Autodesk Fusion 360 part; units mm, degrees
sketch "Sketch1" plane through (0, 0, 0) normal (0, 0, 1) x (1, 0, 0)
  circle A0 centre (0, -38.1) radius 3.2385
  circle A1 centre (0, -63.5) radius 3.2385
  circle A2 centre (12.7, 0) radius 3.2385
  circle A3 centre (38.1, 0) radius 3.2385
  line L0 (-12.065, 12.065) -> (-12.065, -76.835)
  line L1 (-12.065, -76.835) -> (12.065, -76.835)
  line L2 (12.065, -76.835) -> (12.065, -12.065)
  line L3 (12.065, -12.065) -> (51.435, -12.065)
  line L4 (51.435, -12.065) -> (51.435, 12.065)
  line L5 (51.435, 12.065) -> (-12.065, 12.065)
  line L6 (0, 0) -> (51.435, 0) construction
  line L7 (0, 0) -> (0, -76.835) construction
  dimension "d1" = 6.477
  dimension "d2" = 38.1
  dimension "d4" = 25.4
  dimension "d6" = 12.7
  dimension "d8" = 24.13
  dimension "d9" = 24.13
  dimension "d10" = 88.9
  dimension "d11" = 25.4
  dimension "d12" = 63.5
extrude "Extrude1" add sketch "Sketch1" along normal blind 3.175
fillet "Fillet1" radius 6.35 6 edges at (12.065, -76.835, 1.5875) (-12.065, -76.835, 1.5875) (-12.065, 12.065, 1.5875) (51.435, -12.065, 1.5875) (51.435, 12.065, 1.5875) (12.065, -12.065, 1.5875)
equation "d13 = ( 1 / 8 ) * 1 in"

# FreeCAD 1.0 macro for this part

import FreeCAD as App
import Part
import Sketcher

V = App.Vector
Q = App.Units.Quantity


def edges_at(feature, points):
    """Names of the edges that pass closest to the given points."""
    edges = feature.Shape.Edges
    near = lambda p: min(range(len(edges)), key=lambda i: edges[i].distToShape(Part.Vertex(*p))[0])
    return sorted({f"Edge{near(p) + 1}" for p in points})


def add_polygon(sketch, points):
    """Adds a closed chain of lines whose ends are joined by coincident constraints."""
    first, n = sketch.GeometryCount, len(points)
    for a, b in zip(points, points[1:] + points[:1]):
        sketch.addGeometry(Part.LineSegment(App.Vector(*a, 0), App.Vector(*b, 0)), False)
    for i in range(n):
        sketch.addConstraint(Sketcher.Constraint("Coincident", first + i, 2, first + (i + 1) % n, 1))

doc = App.newDocument("Part")
body = doc.addObject("PartDesign::Body", "Body")

sketch1 = body.newObject("Sketcher::SketchObject", "Sketch")
sketch1.AttachmentSupport = (doc.getObject("XY_Plane"), [""])
sketch1.MapMode = "FlatFace"
add_polygon(sketch1, [(51.435, 12.065), (-12.065, 12.065), (-12.065, -76.835), (12.065, -76.835), (12.065, -12.065), (51.435, -12.065)])
sketch1.addGeometry(Part.Circle(V(0, -63.5, 0), V(0, 0, 1), 3.2385), False)
sketch1.addGeometry(Part.Circle(V(0, -38.1, 0), V(0, 0, 1), 3.2385), False)
sketch1.addGeometry(Part.Circle(V(12.7, 0, 0), V(0, 0, 1), 3.2385), False)
sketch1.addGeometry(Part.Circle(V(38.1, 0, 0), V(0, 0, 1), 3.2385), False)
sketch1.addConstraint([
    Sketcher.Constraint("Horizontal", 0),
    Sketcher.Constraint("Vertical", 1),
    Sketcher.Constraint("Horizontal", 2),
    Sketcher.Constraint("Vertical", 3),
    Sketcher.Constraint("Horizontal", 4),
    Sketcher.Constraint("Vertical", 5),
    Sketcher.Constraint("Equal", 6, 7),
    Sketcher.Constraint("Equal", 7, 8),
    Sketcher.Constraint("Equal", 8, 9),
    Sketcher.Constraint("Symmetric", 0, 2, 3, 2, -1, 1),
    Sketcher.Constraint("PointOnObject", 6, 3, -2),
    Sketcher.Constraint("PointOnObject", 7, 3, -2),
    Sketcher.Constraint("PointOnObject", 8, 3, -1),
    Sketcher.Constraint("PointOnObject", 9, 3, -1),
    Sketcher.Constraint("Equal", 2, 5),
    Sketcher.Constraint("Diameter", 6, Q("0.255 in")),
    Sketcher.Constraint("DistanceX", 0, 2, 0, 1, Q("2.5 in")),
    Sketcher.Constraint("DistanceY", 1, 2, 1, 1, Q("3.5 in")),
    Sketcher.Constraint("DistanceY", 6, 3, 7, 3, Q("1 in")),
    Sketcher.Constraint("DistanceX", 8, 3, 9, 3, Q("1 in")),
    Sketcher.Constraint("DistanceX", 2, 1, 2, 2, Q("0.95 in")),
    Sketcher.Constraint("DistanceY", 6, 3, -1, 1, Q("2.5 in")),
    Sketcher.Constraint("DistanceX", -1, 1, 8, 3, Q("0.5 in")),
])
pad1 = body.newObject("PartDesign::Pad", "Pad")
pad1.Profile = sketch1
pad1.Length = Q("0.125 in")
doc.recompute()

fillet = body.newObject("PartDesign::Fillet", "Fillet")
fillet.Base = (pad1, edges_at(pad1, [
    (12.065, -76.835, 1.587),
    (-12.065, -76.835, 1.587),
    (-12.065, 12.065, 1.587),
    (51.435, -12.065, 1.587),
    (51.435, 12.065, 1.587),
    (12.065, -12.065, 1.587),
]))
fillet.Radius = Q("0.25 in")

doc.recompute()
